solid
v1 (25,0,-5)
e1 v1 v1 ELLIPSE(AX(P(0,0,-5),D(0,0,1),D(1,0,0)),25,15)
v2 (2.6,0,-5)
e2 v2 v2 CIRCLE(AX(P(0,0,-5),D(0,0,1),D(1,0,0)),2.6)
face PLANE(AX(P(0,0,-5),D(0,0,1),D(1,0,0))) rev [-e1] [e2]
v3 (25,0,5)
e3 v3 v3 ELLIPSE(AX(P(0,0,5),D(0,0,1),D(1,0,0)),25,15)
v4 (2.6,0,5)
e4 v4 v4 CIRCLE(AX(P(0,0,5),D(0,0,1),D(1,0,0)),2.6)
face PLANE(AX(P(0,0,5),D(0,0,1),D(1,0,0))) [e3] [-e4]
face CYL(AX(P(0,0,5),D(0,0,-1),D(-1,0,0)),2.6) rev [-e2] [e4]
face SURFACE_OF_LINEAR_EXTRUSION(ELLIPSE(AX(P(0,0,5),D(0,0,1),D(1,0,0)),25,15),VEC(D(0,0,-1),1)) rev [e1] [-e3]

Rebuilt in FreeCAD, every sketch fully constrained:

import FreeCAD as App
import Part
import Sketcher
from FreeCAD import Vector

doc = App.newDocument("Part")
params = doc.addObject("Spreadsheet::Sheet", "Params")
for row, (alias, value) in enumerate([
    ("sketch1_diameter", "5.2 mm"),
    ("pad1_length", "10 mm"),
], start=1):
    params.set(f"A{row}", alias)
    params.set(f"B{row}", "=" + value)
    params.setAlias(f"B{row}", alias)

body = doc.addObject("PartDesign::Body", "Body")

# Sketch on XY plane
sketch1 = doc.addObject("Sketcher::SketchObject", "Sketch")
body.addObject(sketch1)
sketch1.AttachmentSupport = (doc.XY_Plane, [""])
sketch1.MapMode = "FlatFace"
sketch1.addGeometry(Part.Ellipse(Vector(25, 0, 0), Vector(0, 15, 0), Vector(0, 0, 0)), False)
sketch1.addGeometry(Part.Circle(Vector(0, 0, 0), Vector(0, 0, 1), 2.6), False)
sketch1.addConstraint(Sketcher.Constraint("Block", 0))
sketch1.addConstraint(Sketcher.Constraint("Coincident", 1, 3, -1, 1))
sketch1.addConstraint(Sketcher.Constraint("Diameter", 1, 5.2))
sketch1.setExpression("Constraints[2]", "Params.sketch1_diameter")
pad1 = doc.addObject("PartDesign::Pad", "Pad")
body.addObject(pad1)
pad1.Profile = sketch1
pad1.setExpression("Length", "Params.pad1_length")
pad1.Midplane = True

doc.recompute()
